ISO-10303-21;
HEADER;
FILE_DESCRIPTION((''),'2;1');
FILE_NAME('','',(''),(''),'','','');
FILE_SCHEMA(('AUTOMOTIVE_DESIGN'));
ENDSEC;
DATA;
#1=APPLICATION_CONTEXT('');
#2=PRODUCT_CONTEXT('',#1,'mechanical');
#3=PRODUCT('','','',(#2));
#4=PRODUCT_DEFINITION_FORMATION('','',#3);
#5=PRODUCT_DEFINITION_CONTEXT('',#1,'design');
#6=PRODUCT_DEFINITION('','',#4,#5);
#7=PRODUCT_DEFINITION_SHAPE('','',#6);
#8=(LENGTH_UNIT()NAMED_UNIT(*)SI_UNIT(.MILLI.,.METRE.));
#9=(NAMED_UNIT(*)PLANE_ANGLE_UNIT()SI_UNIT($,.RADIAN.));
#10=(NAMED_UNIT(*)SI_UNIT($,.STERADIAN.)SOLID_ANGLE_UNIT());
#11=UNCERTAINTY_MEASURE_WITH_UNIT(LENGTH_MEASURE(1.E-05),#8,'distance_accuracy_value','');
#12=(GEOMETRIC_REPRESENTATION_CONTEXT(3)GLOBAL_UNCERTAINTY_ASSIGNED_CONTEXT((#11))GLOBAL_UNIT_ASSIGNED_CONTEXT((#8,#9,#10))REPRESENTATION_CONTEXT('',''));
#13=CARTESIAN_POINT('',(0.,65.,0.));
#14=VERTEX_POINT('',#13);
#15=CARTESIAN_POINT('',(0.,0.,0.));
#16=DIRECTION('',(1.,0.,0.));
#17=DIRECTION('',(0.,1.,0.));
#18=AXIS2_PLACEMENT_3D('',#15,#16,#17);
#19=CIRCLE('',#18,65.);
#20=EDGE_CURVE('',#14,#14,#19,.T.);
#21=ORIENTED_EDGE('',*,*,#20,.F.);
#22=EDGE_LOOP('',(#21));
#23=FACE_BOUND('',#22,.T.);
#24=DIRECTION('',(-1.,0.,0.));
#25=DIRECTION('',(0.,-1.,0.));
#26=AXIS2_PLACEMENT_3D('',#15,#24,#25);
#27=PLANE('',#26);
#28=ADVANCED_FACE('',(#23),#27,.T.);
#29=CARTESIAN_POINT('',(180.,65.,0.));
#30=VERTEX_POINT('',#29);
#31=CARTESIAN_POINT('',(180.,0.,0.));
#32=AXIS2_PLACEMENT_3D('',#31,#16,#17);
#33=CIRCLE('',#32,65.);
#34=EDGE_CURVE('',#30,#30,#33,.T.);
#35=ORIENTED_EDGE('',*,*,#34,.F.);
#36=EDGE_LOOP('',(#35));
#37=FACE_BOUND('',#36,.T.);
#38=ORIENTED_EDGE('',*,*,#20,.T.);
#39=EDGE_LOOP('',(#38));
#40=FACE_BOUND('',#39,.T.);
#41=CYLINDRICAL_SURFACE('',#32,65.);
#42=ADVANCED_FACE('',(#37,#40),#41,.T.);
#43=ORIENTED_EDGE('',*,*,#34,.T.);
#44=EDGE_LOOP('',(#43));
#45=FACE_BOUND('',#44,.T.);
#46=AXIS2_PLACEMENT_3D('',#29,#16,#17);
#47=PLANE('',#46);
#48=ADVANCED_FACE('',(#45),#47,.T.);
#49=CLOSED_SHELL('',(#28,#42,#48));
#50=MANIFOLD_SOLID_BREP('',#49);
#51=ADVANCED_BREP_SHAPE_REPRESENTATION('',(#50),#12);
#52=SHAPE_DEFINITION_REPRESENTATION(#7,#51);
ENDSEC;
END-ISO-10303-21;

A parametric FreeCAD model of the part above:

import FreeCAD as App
import Part
import Sketcher

V = App.Vector


def add_polygon(sketch, points):
    """Adds a closed chain of lines whose ends are joined by coincident constraints."""
    first, n = sketch.GeometryCount, len(points)
    for a, b in zip(points, points[1:] + points[:1]):
        sketch.addGeometry(Part.LineSegment(App.Vector(*a, 0), App.Vector(*b, 0)), False)
    for i in range(n):
        sketch.addConstraint(Sketcher.Constraint("Coincident", first + i, 2, first + (i + 1) % n, 1))

doc = App.newDocument("Part")
body = doc.addObject("PartDesign::Body", "Body")

sketch1 = body.newObject("Sketcher::SketchObject", "Sketch")
sketch1.AttachmentSupport = (doc.getObject("XY_Plane"), [""])
sketch1.MapMode = "FlatFace"
add_polygon(sketch1, [(0, 65), (0, 0), (180, 0), (180, 65)])
sketch1.addConstraint([
    Sketcher.Constraint("Vertical", 0),
    Sketcher.Constraint("Horizontal", 1),
    Sketcher.Constraint("Vertical", 2),
    Sketcher.Constraint("Horizontal", 3),
    Sketcher.Constraint("Coincident", 0, 2, -1, 1),
    Sketcher.Constraint("DistanceX", 1, 1, 1, 2, 180.0),
    Sketcher.Constraint("DistanceY", 0, 2, 0, 1, 65.0),
])
revolution = body.newObject("PartDesign::Revolution", "Revolution")
revolution.Profile = sketch1
revolution.ReferenceAxis = (sketch1, ["H_Axis"])
revolution.Angle = 360

doc.recompute()
